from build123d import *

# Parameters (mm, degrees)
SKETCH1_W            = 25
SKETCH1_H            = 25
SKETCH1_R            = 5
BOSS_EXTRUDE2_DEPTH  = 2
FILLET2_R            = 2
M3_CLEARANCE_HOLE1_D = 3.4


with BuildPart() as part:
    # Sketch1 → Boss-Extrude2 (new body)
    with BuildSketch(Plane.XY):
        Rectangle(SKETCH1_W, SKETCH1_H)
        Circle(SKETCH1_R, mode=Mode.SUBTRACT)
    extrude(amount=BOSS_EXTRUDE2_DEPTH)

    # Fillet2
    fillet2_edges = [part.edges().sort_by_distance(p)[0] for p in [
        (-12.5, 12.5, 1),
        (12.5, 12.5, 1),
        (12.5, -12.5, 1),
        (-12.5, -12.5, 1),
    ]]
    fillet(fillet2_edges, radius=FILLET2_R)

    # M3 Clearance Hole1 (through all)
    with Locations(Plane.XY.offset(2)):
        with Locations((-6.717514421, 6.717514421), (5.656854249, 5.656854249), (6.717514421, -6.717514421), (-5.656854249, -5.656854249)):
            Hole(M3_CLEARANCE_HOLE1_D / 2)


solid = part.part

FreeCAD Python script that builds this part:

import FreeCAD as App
import Part
import Sketcher
from FreeCAD import Vector


def edges_at(feature, points):
    """Names of the edges that pass closest to the given points."""
    edges = feature.Shape.Edges
    near = lambda p: min(range(len(edges)), key=lambda i: edges[i].distToShape(Part.Vertex(*p))[0])
    return sorted({f"Edge{near(p) + 1}" for p in points})

doc = App.newDocument("Part")
params = doc.addObject("Spreadsheet::Sheet", "Params")
for row, (alias, value) in enumerate([
    ("sketch1_diameter", "10 mm"),
    ("sketch1_width", "25 mm"),
    ("pad1_length", "2 mm"),
    ("fillet_radius", "2 mm"),
    ("sketch2_diameter", "3.4 mm"),
    ("hole_diameter", "3.4 mm"),
], start=1):
    params.set(f"A{row}", alias)
    params.set(f"B{row}", "=" + value)
    params.setAlias(f"B{row}", alias)

body = doc.addObject("PartDesign::Body", "Body")

sketch1 = doc.addObject("Sketcher::SketchObject", "Sketch")
body.addObject(sketch1)
sketch1.AttachmentSupport = (doc.XY_Plane, [""])
sketch1.MapMode = "FlatFace"
sketch1.addGeometry(Part.LineSegment(Vector(-12, 12, 0), Vector(-12, -12, 0)), False)
sketch1.addGeometry(Part.LineSegment(Vector(-12, -12, 0), Vector(12, -12, 0)), False)
sketch1.addGeometry(Part.LineSegment(Vector(12, -12, 0), Vector(12, 12, 0)), False)
sketch1.addGeometry(Part.LineSegment(Vector(12, 12, 0), Vector(-12, 12, 0)), False)
sketch1.addGeometry(Part.Circle(Vector(0, 0, 0), Vector(0, 0, 1), 5), False)
sketch1.addConstraint(Sketcher.Constraint("Coincident", 0, 2, 1, 1))
sketch1.addConstraint(Sketcher.Constraint("Coincident", 1, 2, 2, 1))
sketch1.addConstraint(Sketcher.Constraint("Coincident", 2, 2, 3, 1))
sketch1.addConstraint(Sketcher.Constraint("Coincident", 3, 2, 0, 1))
sketch1.addConstraint(Sketcher.Constraint("Vertical", 0))
sketch1.addConstraint(Sketcher.Constraint("Horizontal", 1))
sketch1.addConstraint(Sketcher.Constraint("Vertical", 2))
sketch1.addConstraint(Sketcher.Constraint("Horizontal", 3))
sketch1.addConstraint(Sketcher.Constraint("Coincident", 4, 3, -1, 1))
sketch1.addConstraint(Sketcher.Constraint("Symmetric", 0, 2, 2, 2, -1, 1))
sketch1.addConstraint(Sketcher.Constraint("Equal", 3, 0))
sketch1.addConstraint(Sketcher.Constraint("Diameter", 4, 10.0))
sketch1.addConstraint(Sketcher.Constraint("DistanceX", 1, 1, 1, 2, 25.0))
sketch1.setExpression("Constraints[11]", "Params.sketch1_diameter")
sketch1.setExpression("Constraints[12]", "Params.sketch1_width")
pad1 = doc.addObject("PartDesign::Pad", "Pad")
body.addObject(pad1)
pad1.Profile = sketch1
pad1.setExpression("Length", "Params.pad1_length")
doc.recompute()

fillet = doc.addObject("PartDesign::Fillet", "Fillet")
body.addObject(fillet)
fillet.Base = (pad1, edges_at(pad1, [
    (-12.5, 12.5, 1),
    (12.5, 12.5, 1),
    (12.5, -12.5, 1),
    (-12.5, -12.5, 1),
]))
fillet.setExpression("Radius", "Params.fillet_radius")

sketch2 = doc.addObject("Sketcher::SketchObject", "Sketch001")
body.addObject(sketch2)
sketch2.AttachmentSupport = (doc.XY_Plane, [""])
sketch2.MapMode = "FlatFace"
sketch2.AttachmentOffset = App.Placement(Vector(0, 0, 2), App.Rotation())
sketch2.addGeometry(Part.Circle(Vector(-6.7, 6.7, 0), Vector(0, 0, 1), 1.7), False)
sketch2.addGeometry(Part.Circle(Vector(5.7, 5.7, 0), Vector(0, 0, 1), 1.7), False)
sketch2.addGeometry(Part.Circle(Vector(6.7, -6.7, 0), Vector(0, 0, 1), 1.7), False)
sketch2.addGeometry(Part.Circle(Vector(-5.7, -5.7, 0), Vector(0, 0, 1), 1.7), False)
sketch2.addConstraint(Sketcher.Constraint("Equal", 0, 1))
sketch2.addConstraint(Sketcher.Constraint("Equal", 1, 2))
sketch2.addConstraint(Sketcher.Constraint("Equal", 2, 3))
sketch2.addConstraint(Sketcher.Constraint("Symmetric", 0, 3, 2, 3, -1, 1))
sketch2.addConstraint(Sketcher.Constraint("Symmetric", 1, 3, 3, 3, -1, 1))
sketch2.addConstraint(Sketcher.Constraint("Diameter", 0, 3.4))
sketch2.addConstraint(Sketcher.Constraint("DistanceX", 0, 3, 1, 3, 12.374369))
sketch2.addConstraint(Sketcher.Constraint("DistanceY", 1, 3, 0, 3, 1.06066))
sketch2.addConstraint(Sketcher.Constraint("DistanceX", 1, 3, 2, 3, 1.06066))
sketch2.addConstraint(Sketcher.Constraint("DistanceY", 2, 3, 1, 3, 12.374369))
sketch2.setExpression("Constraints[5]", "Params.sketch2_diameter")
doc.recompute()
hole = doc.addObject("PartDesign::Hole", "Hole")
body.addObject(hole)
hole.Profile = sketch2
hole.ThreadType = "None"
hole.setExpression("Diameter", "Params.hole_diameter")
hole.DepthType = "ThroughAll"

doc.recompute()
